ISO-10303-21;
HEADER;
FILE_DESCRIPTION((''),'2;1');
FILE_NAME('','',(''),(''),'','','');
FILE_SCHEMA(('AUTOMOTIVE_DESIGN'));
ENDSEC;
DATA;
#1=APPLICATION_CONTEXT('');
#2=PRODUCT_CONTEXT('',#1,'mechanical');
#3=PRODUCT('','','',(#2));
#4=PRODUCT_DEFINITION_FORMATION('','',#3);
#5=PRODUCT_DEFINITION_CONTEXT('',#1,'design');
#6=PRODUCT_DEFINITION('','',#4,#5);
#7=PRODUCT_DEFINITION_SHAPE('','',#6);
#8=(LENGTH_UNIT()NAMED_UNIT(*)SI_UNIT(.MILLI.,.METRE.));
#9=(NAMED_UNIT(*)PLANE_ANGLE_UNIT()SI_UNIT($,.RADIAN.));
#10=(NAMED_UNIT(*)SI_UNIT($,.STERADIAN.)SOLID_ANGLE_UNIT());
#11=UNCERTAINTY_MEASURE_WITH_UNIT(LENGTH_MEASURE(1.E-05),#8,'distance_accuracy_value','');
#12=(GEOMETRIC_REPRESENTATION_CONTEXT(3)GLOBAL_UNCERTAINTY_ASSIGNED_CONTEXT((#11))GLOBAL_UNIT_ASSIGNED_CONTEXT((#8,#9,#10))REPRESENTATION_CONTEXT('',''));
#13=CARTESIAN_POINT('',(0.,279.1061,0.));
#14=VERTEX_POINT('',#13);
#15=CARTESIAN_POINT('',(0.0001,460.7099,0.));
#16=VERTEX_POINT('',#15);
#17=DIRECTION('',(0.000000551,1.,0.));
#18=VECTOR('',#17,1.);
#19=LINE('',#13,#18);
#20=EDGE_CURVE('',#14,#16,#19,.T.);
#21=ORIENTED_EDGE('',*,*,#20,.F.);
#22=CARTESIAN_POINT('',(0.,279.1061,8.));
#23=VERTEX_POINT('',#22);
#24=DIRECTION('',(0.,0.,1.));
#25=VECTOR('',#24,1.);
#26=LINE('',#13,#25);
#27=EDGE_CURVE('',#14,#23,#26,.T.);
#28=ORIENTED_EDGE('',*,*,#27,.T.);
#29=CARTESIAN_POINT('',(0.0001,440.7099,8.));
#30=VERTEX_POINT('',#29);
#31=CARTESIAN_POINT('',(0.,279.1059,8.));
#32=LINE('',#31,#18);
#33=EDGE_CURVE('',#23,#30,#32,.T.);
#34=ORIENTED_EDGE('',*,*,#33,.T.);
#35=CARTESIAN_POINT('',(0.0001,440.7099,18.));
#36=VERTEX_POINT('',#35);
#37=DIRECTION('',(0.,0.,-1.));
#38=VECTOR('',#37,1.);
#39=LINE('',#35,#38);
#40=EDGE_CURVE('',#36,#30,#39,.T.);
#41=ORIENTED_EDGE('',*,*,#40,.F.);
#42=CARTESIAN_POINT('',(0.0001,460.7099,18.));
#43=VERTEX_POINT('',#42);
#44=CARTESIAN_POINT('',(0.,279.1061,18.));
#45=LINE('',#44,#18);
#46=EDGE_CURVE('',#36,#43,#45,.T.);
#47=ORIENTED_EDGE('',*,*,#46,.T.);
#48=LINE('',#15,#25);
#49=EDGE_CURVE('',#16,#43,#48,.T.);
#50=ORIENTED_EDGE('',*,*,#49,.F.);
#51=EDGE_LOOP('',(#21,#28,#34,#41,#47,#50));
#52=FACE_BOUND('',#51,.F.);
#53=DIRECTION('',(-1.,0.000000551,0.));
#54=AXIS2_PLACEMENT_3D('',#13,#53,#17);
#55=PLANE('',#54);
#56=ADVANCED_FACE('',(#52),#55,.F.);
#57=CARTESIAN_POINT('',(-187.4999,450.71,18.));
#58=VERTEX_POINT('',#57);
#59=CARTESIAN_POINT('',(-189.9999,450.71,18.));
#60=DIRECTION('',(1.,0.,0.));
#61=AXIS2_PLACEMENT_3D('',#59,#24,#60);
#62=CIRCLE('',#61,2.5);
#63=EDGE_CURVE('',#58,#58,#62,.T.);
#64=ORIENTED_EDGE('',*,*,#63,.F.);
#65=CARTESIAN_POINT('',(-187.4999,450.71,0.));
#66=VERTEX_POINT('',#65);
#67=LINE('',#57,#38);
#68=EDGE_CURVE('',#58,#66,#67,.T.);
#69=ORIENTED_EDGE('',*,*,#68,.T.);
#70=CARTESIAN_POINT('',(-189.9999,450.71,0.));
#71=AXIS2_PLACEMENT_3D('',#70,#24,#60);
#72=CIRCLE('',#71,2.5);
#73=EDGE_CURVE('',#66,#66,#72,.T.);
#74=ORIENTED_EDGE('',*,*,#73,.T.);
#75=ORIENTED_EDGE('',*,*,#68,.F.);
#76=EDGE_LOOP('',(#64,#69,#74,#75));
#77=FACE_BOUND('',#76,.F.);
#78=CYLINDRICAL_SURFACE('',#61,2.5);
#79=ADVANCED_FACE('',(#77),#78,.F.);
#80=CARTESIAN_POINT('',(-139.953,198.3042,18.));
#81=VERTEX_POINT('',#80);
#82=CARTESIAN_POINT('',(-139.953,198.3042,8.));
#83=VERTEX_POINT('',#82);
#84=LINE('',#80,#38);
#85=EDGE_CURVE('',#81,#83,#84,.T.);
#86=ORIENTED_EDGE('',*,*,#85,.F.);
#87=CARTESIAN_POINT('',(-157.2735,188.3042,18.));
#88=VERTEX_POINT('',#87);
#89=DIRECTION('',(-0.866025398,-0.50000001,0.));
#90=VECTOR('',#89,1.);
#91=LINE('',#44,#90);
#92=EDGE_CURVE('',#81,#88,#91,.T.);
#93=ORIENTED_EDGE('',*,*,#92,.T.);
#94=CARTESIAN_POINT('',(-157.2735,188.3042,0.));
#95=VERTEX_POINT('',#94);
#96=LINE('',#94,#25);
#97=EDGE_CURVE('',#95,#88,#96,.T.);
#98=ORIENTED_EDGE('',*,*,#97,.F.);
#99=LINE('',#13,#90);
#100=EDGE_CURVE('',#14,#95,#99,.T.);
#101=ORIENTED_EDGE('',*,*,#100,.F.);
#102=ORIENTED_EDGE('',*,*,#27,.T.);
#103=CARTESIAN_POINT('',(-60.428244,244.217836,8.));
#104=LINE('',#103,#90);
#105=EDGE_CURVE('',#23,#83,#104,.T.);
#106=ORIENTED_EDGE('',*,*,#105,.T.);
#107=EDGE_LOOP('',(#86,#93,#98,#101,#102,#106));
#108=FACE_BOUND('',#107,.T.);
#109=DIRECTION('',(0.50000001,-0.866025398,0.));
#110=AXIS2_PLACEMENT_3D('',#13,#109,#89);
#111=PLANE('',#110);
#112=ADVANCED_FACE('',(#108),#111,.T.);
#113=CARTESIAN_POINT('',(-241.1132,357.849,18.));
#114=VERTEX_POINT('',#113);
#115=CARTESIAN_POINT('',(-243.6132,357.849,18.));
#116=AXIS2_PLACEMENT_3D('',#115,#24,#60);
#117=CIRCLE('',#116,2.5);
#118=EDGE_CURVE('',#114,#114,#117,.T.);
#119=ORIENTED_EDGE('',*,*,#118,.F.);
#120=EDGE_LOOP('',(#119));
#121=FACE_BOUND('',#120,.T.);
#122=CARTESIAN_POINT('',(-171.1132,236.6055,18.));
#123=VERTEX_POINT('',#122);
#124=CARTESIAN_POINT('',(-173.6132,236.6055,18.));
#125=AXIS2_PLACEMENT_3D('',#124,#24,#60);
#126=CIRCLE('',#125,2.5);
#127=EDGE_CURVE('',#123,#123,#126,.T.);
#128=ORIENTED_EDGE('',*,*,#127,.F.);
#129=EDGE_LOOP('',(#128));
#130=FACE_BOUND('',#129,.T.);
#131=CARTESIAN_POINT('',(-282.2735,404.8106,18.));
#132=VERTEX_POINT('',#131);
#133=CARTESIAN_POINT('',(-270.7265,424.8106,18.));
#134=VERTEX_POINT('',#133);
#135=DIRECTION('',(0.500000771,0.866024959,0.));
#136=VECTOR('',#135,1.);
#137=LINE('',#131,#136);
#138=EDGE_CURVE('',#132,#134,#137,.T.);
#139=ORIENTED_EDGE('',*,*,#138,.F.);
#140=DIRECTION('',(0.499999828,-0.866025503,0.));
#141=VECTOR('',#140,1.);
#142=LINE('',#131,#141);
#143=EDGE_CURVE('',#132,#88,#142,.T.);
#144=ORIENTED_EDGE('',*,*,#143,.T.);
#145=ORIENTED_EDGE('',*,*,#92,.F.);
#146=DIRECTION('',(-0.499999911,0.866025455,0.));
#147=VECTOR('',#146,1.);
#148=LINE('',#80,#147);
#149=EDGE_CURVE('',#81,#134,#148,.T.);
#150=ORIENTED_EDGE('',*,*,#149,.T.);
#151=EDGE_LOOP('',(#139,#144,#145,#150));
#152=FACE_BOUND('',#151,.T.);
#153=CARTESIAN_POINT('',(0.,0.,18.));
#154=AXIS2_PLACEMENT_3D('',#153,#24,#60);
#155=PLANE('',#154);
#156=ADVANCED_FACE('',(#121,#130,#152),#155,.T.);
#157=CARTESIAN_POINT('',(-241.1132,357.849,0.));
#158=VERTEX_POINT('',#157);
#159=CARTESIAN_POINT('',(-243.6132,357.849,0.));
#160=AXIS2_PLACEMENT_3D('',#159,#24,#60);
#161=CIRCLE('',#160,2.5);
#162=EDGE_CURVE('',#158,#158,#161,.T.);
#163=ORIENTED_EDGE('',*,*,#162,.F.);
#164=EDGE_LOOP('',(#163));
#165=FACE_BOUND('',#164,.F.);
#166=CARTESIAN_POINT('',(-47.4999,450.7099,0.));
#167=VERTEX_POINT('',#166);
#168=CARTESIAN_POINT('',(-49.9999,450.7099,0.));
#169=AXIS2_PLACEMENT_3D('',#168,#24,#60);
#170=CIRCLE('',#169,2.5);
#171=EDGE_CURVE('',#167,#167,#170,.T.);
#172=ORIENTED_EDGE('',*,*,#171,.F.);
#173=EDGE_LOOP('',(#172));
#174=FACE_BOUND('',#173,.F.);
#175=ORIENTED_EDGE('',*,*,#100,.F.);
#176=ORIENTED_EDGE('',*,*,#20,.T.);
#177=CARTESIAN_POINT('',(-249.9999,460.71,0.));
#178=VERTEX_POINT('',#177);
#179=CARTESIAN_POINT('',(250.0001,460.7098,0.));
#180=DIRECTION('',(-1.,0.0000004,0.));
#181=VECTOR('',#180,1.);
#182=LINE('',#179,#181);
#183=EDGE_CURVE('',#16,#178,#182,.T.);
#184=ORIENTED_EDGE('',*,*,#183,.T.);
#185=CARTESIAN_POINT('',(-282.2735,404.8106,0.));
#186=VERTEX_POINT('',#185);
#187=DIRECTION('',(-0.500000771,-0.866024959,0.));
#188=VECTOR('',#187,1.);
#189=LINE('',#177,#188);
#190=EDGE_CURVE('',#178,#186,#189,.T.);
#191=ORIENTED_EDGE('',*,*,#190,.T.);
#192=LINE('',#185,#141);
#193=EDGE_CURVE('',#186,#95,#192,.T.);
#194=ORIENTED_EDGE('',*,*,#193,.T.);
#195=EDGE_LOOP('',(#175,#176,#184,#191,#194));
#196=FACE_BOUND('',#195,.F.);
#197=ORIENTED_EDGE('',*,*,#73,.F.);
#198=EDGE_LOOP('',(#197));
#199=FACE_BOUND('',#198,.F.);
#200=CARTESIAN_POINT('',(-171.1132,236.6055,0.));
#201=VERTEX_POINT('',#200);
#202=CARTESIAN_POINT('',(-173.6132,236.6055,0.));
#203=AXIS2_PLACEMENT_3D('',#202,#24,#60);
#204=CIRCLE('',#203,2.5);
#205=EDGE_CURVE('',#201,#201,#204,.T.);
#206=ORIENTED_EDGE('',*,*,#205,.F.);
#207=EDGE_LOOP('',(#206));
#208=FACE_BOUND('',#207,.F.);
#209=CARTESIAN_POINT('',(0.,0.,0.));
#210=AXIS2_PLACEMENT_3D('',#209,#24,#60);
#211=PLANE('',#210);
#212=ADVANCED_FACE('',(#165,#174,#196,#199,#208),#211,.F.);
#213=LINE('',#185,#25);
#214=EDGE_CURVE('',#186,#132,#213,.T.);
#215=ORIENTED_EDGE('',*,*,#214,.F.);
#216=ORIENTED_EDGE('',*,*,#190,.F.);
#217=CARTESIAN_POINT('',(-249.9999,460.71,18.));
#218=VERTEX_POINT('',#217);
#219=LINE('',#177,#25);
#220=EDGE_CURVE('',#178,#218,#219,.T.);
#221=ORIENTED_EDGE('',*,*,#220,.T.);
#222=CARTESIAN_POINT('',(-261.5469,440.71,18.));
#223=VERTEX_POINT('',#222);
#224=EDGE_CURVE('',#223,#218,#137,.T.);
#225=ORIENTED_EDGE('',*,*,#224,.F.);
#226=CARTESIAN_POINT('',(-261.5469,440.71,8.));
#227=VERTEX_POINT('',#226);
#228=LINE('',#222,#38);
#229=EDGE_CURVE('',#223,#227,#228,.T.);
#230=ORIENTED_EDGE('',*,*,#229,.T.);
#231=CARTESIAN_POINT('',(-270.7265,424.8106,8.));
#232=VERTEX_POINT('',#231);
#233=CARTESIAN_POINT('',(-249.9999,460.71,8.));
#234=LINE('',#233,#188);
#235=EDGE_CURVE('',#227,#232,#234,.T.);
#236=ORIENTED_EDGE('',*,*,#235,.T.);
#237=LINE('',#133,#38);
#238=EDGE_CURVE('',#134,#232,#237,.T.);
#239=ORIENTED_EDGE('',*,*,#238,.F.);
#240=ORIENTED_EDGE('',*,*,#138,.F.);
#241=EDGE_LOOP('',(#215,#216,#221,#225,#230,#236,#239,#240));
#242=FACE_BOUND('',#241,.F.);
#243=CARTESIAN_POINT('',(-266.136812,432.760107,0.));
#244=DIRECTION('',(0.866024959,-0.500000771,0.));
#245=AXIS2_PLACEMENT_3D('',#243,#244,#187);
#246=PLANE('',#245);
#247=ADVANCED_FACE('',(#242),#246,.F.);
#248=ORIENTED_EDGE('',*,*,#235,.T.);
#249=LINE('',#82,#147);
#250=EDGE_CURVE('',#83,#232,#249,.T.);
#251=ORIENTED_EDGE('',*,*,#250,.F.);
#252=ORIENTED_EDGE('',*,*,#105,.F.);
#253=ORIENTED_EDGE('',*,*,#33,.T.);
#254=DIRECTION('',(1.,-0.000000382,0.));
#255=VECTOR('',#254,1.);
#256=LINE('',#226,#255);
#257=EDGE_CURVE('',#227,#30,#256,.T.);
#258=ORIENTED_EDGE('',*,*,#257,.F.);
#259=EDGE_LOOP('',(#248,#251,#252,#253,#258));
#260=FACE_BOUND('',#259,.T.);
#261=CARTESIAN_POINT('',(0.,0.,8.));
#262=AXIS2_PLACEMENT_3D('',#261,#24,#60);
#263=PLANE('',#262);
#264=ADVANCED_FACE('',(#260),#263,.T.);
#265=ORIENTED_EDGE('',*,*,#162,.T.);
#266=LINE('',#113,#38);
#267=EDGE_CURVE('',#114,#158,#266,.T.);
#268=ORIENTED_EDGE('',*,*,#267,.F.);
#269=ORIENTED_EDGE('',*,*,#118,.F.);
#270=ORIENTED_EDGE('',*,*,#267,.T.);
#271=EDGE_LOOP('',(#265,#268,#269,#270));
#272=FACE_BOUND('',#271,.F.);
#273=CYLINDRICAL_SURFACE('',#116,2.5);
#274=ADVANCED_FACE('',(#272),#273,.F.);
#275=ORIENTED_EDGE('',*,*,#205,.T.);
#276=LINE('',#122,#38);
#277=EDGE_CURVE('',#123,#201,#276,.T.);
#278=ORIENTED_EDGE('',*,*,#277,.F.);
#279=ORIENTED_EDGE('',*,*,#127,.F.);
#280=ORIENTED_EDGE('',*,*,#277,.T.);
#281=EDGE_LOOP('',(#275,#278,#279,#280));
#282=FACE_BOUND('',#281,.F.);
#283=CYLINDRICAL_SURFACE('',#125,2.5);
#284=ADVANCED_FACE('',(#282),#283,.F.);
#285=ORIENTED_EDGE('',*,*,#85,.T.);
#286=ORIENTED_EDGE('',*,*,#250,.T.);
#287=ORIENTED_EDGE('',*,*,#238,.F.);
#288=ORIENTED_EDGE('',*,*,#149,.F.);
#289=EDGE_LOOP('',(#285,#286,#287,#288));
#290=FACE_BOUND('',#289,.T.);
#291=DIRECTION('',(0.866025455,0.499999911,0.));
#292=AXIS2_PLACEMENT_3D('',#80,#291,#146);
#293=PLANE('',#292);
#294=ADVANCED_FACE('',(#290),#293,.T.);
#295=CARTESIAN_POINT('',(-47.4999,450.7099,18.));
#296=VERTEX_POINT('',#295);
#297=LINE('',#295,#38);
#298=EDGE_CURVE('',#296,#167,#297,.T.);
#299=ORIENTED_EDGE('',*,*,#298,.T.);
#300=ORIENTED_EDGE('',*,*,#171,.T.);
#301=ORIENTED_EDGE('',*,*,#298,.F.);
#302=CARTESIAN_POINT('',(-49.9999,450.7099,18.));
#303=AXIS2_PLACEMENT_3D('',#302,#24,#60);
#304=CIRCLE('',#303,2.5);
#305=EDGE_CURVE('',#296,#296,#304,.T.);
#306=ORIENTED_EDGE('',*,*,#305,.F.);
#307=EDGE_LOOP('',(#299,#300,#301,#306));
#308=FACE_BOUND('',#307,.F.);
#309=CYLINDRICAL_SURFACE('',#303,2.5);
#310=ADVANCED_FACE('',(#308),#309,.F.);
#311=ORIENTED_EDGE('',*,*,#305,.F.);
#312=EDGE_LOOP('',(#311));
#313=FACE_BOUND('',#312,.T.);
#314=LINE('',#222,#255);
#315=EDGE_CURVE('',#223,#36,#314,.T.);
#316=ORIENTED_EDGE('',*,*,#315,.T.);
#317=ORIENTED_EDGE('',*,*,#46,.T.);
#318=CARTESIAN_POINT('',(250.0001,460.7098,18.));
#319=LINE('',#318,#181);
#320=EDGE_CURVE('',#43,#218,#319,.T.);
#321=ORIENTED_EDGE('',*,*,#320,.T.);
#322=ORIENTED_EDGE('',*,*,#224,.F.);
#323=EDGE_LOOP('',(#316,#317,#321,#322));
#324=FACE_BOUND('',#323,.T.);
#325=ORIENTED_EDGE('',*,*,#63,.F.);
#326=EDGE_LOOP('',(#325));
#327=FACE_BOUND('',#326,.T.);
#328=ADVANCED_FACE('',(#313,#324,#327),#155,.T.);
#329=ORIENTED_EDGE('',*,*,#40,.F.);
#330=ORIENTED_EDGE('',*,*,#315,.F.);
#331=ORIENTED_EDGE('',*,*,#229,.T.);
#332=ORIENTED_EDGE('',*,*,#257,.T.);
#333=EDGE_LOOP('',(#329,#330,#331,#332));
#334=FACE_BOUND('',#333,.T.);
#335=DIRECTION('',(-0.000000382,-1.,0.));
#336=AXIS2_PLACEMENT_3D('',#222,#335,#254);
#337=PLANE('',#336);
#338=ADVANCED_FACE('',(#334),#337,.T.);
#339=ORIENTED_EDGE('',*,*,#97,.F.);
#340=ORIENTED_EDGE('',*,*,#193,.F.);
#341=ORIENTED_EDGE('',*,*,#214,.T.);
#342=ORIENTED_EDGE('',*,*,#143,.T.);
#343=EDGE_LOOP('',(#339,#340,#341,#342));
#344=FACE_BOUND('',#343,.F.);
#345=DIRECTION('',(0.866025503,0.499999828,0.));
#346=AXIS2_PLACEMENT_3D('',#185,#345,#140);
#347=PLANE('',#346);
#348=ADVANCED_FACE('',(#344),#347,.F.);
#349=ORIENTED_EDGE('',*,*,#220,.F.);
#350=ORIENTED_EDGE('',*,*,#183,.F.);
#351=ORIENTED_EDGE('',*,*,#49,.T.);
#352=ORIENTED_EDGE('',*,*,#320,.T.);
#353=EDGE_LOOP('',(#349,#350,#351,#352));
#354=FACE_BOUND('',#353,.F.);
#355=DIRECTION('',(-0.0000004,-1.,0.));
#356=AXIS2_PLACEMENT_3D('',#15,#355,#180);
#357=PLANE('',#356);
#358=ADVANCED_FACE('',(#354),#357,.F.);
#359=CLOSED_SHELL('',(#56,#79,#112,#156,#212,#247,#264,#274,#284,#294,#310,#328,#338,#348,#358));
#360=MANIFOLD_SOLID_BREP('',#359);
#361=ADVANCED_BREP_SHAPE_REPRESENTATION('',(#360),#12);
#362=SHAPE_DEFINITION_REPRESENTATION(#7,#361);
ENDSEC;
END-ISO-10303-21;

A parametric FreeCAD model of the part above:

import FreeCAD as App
import Part
import Sketcher
from FreeCAD import Vector
Q = App.Units.Quantity

doc = App.newDocument("Part")
params = doc.addObject("Spreadsheet::Sheet", "Params")
for row, (alias, value) in enumerate([
    ("sketch1_width", "250 mm"),
    ("sketch1_length", "250 mm"),
    ("pad1_length", "18 mm"),
    ("pocket1_length", "10 mm"),
    ("sketch3_diameter", "5 mm"),
], start=1):
    params.set(f"A{row}", alias)
    params.set(f"B{row}", "=" + value)
    params.setAlias(f"B{row}", alias)

body = doc.addObject("PartDesign::Body", "Body")

sketch1 = body.newObject("Sketcher::SketchObject", "Sketch")
sketch1.AttachmentSupport = (doc.getObject("XY_Plane"), [""])
sketch1.MapMode = "FlatFace"
sketch1.addGeometry([
    Part.LineSegment(Vector(-282, 405, 0), Vector(-157, 188, 0)),
    Part.LineSegment(Vector(-157, 188, 0), Vector(0, 279, 0)),
    Part.LineSegment(Vector(0, 279, 0), Vector(0, 461, 0)),
    Part.LineSegment(Vector(0, 461, 0), Vector(-250, 461, 0)),
    Part.LineSegment(Vector(-250, 461, 0), Vector(-282, 405, 0)),
], False)
sketch1.addConstraint([
    Sketcher.Constraint("Coincident", 0, 2, 1, 1),
    Sketcher.Constraint("Coincident", 1, 2, 2, 1),
    Sketcher.Constraint("Coincident", 2, 2, 3, 1),
    Sketcher.Constraint("Coincident", 3, 2, 4, 1),
    Sketcher.Constraint("Coincident", 4, 2, 0, 1),
    Sketcher.Constraint("Vertical", 2),
    Sketcher.Constraint("Horizontal", 3),
    Sketcher.Constraint("PointOnObject", 1, 2, -2),
    Sketcher.Constraint("Perpendicular", 0, 1),
    Sketcher.Constraint("DistanceX", 3, 2, 3, 1, 250.0),
    Sketcher.Constraint("Angle", 0, Q("-60 deg")),
    Sketcher.Constraint("Angle", 4, Q("-120 deg")),
    Sketcher.Constraint("Distance", 0, 250.0),
    Sketcher.Constraint("DistanceY", -1, 1, 2, 2, 460.71),
    Sketcher.Constraint("Distance", 4, 64.547),
])
sketch1.setExpression("Constraints[9]", "Params.sketch1_width")
sketch1.setExpression("Constraints[12]", "Params.sketch1_length")
pad1 = body.newObject("PartDesign::Pad", "Pad")
pad1.Profile = sketch1
pad1.setExpression("Length", "Params.pad1_length")

sketch2 = body.newObject("Sketcher::SketchObject", "Sketch001")
sketch2.AttachmentSupport = (doc.getObject("XY_Plane"), [""])
sketch2.MapMode = "FlatFace"
sketch2.AttachmentOffset = App.Placement(Vector(0, 0, 18), App.Rotation())
sketch2.addGeometry([
    Part.LineSegment(Vector(-140, 198, 0), Vector(0, 279, 0)),
    Part.LineSegment(Vector(0, 279, 0), Vector(0, 441, 0)),
    Part.LineSegment(Vector(0, 441, 0), Vector(-262, 441, 0)),
    Part.LineSegment(Vector(-262, 441, 0), Vector(-271, 425, 0)),
    Part.LineSegment(Vector(-271, 425, 0), Vector(-140, 198, 0)),
], False)
sketch2.addConstraint([
    Sketcher.Constraint("Coincident", 0, 2, 1, 1),
    Sketcher.Constraint("Coincident", 1, 2, 2, 1),
    Sketcher.Constraint("Coincident", 2, 2, 3, 1),
    Sketcher.Constraint("Coincident", 3, 2, 4, 1),
    Sketcher.Constraint("Coincident", 4, 2, 0, 1),
    Sketcher.Constraint("Vertical", 1),
    Sketcher.Constraint("Horizontal", 2),
    Sketcher.Constraint("PointOnObject", 0, 2, -2),
    Sketcher.Constraint("Perpendicular", 0, 4),
    Sketcher.Constraint("Angle", 0, Q("30 deg")),
    Sketcher.Constraint("Angle", 3, Q("-120 deg")),
    Sketcher.Constraint("DistanceX", 2, 2, 2, 1, 261.547),
    Sketcher.Constraint("DistanceY", 1, 1, 1, 2, 161.604),
    Sketcher.Constraint("DistanceY", -1, 1, 1, 2, 440.71),
    Sketcher.Constraint("Distance", 3, 18.359),
])
pocket1 = body.newObject("PartDesign::Pocket", "Pocket")
pocket1.Profile = sketch2
pocket1.setExpression("Length", "Params.pocket1_length")

sketch3 = body.newObject("Sketcher::SketchObject", "Sketch002")
sketch3.AttachmentSupport = (doc.getObject("XY_Plane"), [""])
sketch3.MapMode = "FlatFace"
sketch3.AttachmentOffset = App.Placement(Vector(0, 0, 18), App.Rotation())
sketch3.addGeometry([
    Part.Circle(Vector(-190, 450.7, 0), Vector(0, 0, 1), 2.5),
    Part.Circle(Vector(-50, 450.7, 0), Vector(0, 0, 1), 2.5),
    Part.Circle(Vector(-243.6, 357.8, 0), Vector(0, 0, 1), 2.5),
    Part.Circle(Vector(-173.6, 236.6, 0), Vector(0, 0, 1), 2.5),
], False)
sketch3.addConstraint([
    Sketcher.Constraint("Equal", 0, 1),
    Sketcher.Constraint("Equal", 1, 2),
    Sketcher.Constraint("Equal", 2, 3),
    Sketcher.Constraint("Horizontal", 0, 3, 1, 3),
    Sketcher.Constraint("Diameter", 0, 5.0),
    Sketcher.Constraint("DistanceX", 0, 3, -1, 1, 190.0),
    Sketcher.Constraint("DistanceX", 1, 3, -1, 1, 50.0),
    Sketcher.Constraint("DistanceX", 2, 3, 3, 3, 70.0),
    Sketcher.Constraint("DistanceY", -1, 1, 0, 3, 450.71),
    Sketcher.Constraint("DistanceY", -1, 1, 2, 3, 357.849),
    Sketcher.Constraint("DistanceX", 2, 3, -1, 1, 243.6132),
    Sketcher.Constraint("DistanceY", -1, 1, 3, 3, 236.6055),
])
sketch3.setExpression("Constraints[4]", "Params.sketch3_diameter")
pocket2 = body.newObject("PartDesign::Pocket", "Pocket001")
pocket2.Profile = sketch3
pocket2.Type = "ThroughAll"

doc.recompute()
